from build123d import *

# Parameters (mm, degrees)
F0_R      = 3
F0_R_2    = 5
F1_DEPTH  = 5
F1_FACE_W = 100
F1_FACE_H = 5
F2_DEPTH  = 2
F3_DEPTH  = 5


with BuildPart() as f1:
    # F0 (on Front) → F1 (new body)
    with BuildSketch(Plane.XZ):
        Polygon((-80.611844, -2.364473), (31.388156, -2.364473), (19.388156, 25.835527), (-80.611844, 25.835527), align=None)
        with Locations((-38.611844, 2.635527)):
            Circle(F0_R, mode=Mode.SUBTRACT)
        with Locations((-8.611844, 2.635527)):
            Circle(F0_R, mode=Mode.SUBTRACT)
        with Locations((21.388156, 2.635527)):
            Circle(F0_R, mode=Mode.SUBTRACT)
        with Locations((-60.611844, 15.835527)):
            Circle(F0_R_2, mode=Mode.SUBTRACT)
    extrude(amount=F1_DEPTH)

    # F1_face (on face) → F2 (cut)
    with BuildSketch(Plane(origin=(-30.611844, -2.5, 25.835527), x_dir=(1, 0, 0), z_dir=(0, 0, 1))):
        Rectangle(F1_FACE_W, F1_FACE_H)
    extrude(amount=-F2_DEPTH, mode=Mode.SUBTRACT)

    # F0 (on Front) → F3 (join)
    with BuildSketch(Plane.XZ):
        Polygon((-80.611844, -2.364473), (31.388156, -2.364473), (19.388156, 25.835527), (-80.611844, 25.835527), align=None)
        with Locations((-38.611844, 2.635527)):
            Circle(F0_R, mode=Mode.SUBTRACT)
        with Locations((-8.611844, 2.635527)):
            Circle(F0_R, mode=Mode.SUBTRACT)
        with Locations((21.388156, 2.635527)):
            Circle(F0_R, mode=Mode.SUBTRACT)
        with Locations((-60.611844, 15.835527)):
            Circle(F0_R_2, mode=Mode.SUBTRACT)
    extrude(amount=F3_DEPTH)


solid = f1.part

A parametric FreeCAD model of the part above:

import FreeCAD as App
import Part
import Sketcher

V = App.Vector
Q = App.Units.Quantity


def add_polygon(sketch, points):
    """Adds a closed chain of lines whose ends are joined by coincident constraints."""
    first, n = sketch.GeometryCount, len(points)
    for a, b in zip(points, points[1:] + points[:1]):
        sketch.addGeometry(Part.LineSegment(App.Vector(*a, 0), App.Vector(*b, 0)), False)
    for i in range(n):
        sketch.addConstraint(Sketcher.Constraint("Coincident", first + i, 2, first + (i + 1) % n, 1))

doc = App.newDocument("Part")
params = doc.addObject("Spreadsheet::Sheet", "Params")
for row, (alias, value) in enumerate([
    ("sketch1_diameter", "6 mm"),
    ("sketch1_diameter2", "10 mm"),
    ("sketch1_width", "112 mm"),
    ("sketch1_width2", "100 mm"),
    ("sketch1_height", "28.2 mm"),
    ("pad1_length", "5 mm"),
    ("sketch2_width", "100 mm"),
    ("sketch2_height", "5 mm"),
    ("pocket1_length", "2 mm"),
    ("sketch3_diameter", "6 mm"),
    ("sketch3_diameter2", "10 mm"),
    ("sketch3_width", "112 mm"),
    ("sketch3_width2", "100 mm"),
    ("sketch3_height", "28.2 mm"),
    ("pad2_length", "5 mm"),
], start=1):
    params.set(f"A{row}", alias)
    params.set(f"B{row}", "=" + value)
    params.setAlias(f"B{row}", alias)

body = doc.addObject("PartDesign::Body", "Body")

# Sketch on XZ plane
sketch1 = body.newObject("Sketcher::SketchObject", "Sketch")
sketch1.AttachmentSupport = (doc.getObject("XZ_Plane"), [""])
sketch1.MapMode = "FlatFace"
add_polygon(sketch1, [(-80.6, -2.4), (31.4, -2.4), (19.4, 25.8), (-80.6, 25.8)])  # lines 0-3
sketch1.addGeometry(Part.Circle(V(-38.6, 2.6, 0), V(0, 0, 1), 3), False)  # 4
sketch1.addGeometry(Part.Circle(V(-8.6, 2.6, 0), V(0, 0, 1), 3), False)  # 5
sketch1.addGeometry(Part.Circle(V(21.4, 2.6, 0), V(0, 0, 1), 3), False)  # 6
sketch1.addGeometry(Part.Circle(V(-60.6, 15.8, 0), V(0, 0, 1), 5), False)  # 7
sketch1.addConstraint([
    Sketcher.Constraint("Horizontal", 0),
    Sketcher.Constraint("Horizontal", 2),
    Sketcher.Constraint("Vertical", 3),
    Sketcher.Constraint("Equal", 4, 5),
    Sketcher.Constraint("Equal", 5, 6),
    Sketcher.Constraint("Horizontal", 4, 3, 5, 3),
    Sketcher.Constraint("Horizontal", 5, 3, 6, 3),
    Sketcher.Constraint("Diameter", 4, Q("6 mm")),
    Sketcher.Constraint("Diameter", 7, Q("10 mm")),
    Sketcher.Constraint("DistanceX", 0, 1, 0, 2, Q("112 mm")),
    Sketcher.Constraint("DistanceX", 2, 2, 2, 1, Q("100 mm")),
    Sketcher.Constraint("DistanceY", 3, 2, 3, 1, Q("28.2 mm")),
    Sketcher.Constraint("DistanceX", 4, 3, 5, 3, Q("30 mm")),
    Sketcher.Constraint("DistanceX", 5, 3, 6, 3, Q("30 mm")),
    Sketcher.Constraint("DistanceX", 7, 3, 4, 3, Q("22 mm")),
    Sketcher.Constraint("DistanceX", 6, 3, 0, 2, Q("10 mm")),
    Sketcher.Constraint("DistanceY", 0, 2, 6, 3, Q("5 mm")),
    Sketcher.Constraint("DistanceY", 7, 3, 1, 2, Q("10 mm")),
    Sketcher.Constraint("DistanceX", 4, 3, -1, 1, Q("38.611844 mm")),
    Sketcher.Constraint("DistanceY", -1, 1, 4, 3, Q("2.635527 mm")),
])
sketch1.setExpression("Constraints[11]", "Params.sketch1_diameter")
sketch1.setExpression("Constraints[12]", "Params.sketch1_diameter2")
sketch1.setExpression("Constraints[13]", "Params.sketch1_width")
sketch1.setExpression("Constraints[14]", "Params.sketch1_width2")
sketch1.setExpression("Constraints[15]", "Params.sketch1_height")
pad1 = body.newObject("PartDesign::Pad", "Pad")
pad1.Profile = sketch1
pad1.setExpression("Length", "Params.pad1_length")

# Sketch on XY plane
sketch2 = body.newObject("Sketcher::SketchObject", "Sketch001")
sketch2.AttachmentSupport = (doc.getObject("XY_Plane"), [""])
sketch2.MapMode = "FlatFace"
sketch2.AttachmentOffset = App.Placement(V(0, 0, 25.835527), App.Rotation())
add_polygon(sketch2, [(-81, 0), (-81, -5), (19, -5), (19, 0)])  # lines 0-3
sketch2.addConstraint([
    Sketcher.Constraint("Vertical", 0),
    Sketcher.Constraint("Horizontal", 1),
    Sketcher.Constraint("Vertical", 2),
    Sketcher.Constraint("Horizontal", 3),
    Sketcher.Constraint("PointOnObject", 2, 2, -1),
    Sketcher.Constraint("DistanceX", 1, 1, 1, 2, Q("100 mm")),
    Sketcher.Constraint("DistanceY", 0, 2, 0, 1, Q("5 mm")),
    Sketcher.Constraint("DistanceX", 0, 2, -1, 1, Q("80.611844 mm")),
])
sketch2.setExpression("Constraints[9]", "Params.sketch2_width")
sketch2.setExpression("Constraints[10]", "Params.sketch2_height")
pocket1 = body.newObject("PartDesign::Pocket", "Pocket")
pocket1.Profile = sketch2
pocket1.setExpression("Length", "Params.pocket1_length")

# Sketch on XZ plane
sketch3 = body.newObject("Sketcher::SketchObject", "Sketch002")
sketch3.AttachmentSupport = (doc.getObject("XZ_Plane"), [""])
sketch3.MapMode = "FlatFace"
add_polygon(sketch3, [(-80.6, -2.4), (31.4, -2.4), (19.4, 25.8), (-80.6, 25.8)])  # lines 0-3
sketch3.addGeometry(Part.Circle(V(-38.6, 2.6, 0), V(0, 0, 1), 3), False)  # 4
sketch3.addGeometry(Part.Circle(V(-8.6, 2.6, 0), V(0, 0, 1), 3), False)  # 5
sketch3.addGeometry(Part.Circle(V(21.4, 2.6, 0), V(0, 0, 1), 3), False)  # 6
sketch3.addGeometry(Part.Circle(V(-60.6, 15.8, 0), V(0, 0, 1), 5), False)  # 7
sketch3.addConstraint([
    Sketcher.Constraint("Horizontal", 0),
    Sketcher.Constraint("Horizontal", 2),
    Sketcher.Constraint("Vertical", 3),
    Sketcher.Constraint("Equal", 4, 5),
    Sketcher.Constraint("Equal", 5, 6),
    Sketcher.Constraint("Horizontal", 4, 3, 5, 3),
    Sketcher.Constraint("Horizontal", 5, 3, 6, 3),
    Sketcher.Constraint("Diameter", 4, Q("6 mm")),
    Sketcher.Constraint("Diameter", 7, Q("10 mm")),
    Sketcher.Constraint("DistanceX", 0, 1, 0, 2, Q("112 mm")),
    Sketcher.Constraint("DistanceX", 2, 2, 2, 1, Q("100 mm")),
    Sketcher.Constraint("DistanceY", 3, 2, 3, 1, Q("28.2 mm")),
    Sketcher.Constraint("DistanceX", 4, 3, 5, 3, Q("30 mm")),
    Sketcher.Constraint("DistanceX", 5, 3, 6, 3, Q("30 mm")),
    Sketcher.Constraint("DistanceX", 7, 3, 4, 3, Q("22 mm")),
    Sketcher.Constraint("DistanceX", 6, 3, 0, 2, Q("10 mm")),
    Sketcher.Constraint("DistanceY", 0, 2, 6, 3, Q("5 mm")),
    Sketcher.Constraint("DistanceY", 7, 3, 1, 2, Q("10 mm")),
    Sketcher.Constraint("DistanceX", 4, 3, -1, 1, Q("38.611844 mm")),
    Sketcher.Constraint("DistanceY", -1, 1, 4, 3, Q("2.635527 mm")),
])
sketch3.setExpression("Constraints[11]", "Params.sketch3_diameter")
sketch3.setExpression("Constraints[12]", "Params.sketch3_diameter2")
sketch3.setExpression("Constraints[13]", "Params.sketch3_width")
sketch3.setExpression("Constraints[14]", "Params.sketch3_width2")
sketch3.setExpression("Constraints[15]", "Params.sketch3_height")
pad2 = body.newObject("PartDesign::Pad", "Pad001")
pad2.Profile = sketch3
pad2.setExpression("Length", "Params.pad2_length")

doc.recompute()
